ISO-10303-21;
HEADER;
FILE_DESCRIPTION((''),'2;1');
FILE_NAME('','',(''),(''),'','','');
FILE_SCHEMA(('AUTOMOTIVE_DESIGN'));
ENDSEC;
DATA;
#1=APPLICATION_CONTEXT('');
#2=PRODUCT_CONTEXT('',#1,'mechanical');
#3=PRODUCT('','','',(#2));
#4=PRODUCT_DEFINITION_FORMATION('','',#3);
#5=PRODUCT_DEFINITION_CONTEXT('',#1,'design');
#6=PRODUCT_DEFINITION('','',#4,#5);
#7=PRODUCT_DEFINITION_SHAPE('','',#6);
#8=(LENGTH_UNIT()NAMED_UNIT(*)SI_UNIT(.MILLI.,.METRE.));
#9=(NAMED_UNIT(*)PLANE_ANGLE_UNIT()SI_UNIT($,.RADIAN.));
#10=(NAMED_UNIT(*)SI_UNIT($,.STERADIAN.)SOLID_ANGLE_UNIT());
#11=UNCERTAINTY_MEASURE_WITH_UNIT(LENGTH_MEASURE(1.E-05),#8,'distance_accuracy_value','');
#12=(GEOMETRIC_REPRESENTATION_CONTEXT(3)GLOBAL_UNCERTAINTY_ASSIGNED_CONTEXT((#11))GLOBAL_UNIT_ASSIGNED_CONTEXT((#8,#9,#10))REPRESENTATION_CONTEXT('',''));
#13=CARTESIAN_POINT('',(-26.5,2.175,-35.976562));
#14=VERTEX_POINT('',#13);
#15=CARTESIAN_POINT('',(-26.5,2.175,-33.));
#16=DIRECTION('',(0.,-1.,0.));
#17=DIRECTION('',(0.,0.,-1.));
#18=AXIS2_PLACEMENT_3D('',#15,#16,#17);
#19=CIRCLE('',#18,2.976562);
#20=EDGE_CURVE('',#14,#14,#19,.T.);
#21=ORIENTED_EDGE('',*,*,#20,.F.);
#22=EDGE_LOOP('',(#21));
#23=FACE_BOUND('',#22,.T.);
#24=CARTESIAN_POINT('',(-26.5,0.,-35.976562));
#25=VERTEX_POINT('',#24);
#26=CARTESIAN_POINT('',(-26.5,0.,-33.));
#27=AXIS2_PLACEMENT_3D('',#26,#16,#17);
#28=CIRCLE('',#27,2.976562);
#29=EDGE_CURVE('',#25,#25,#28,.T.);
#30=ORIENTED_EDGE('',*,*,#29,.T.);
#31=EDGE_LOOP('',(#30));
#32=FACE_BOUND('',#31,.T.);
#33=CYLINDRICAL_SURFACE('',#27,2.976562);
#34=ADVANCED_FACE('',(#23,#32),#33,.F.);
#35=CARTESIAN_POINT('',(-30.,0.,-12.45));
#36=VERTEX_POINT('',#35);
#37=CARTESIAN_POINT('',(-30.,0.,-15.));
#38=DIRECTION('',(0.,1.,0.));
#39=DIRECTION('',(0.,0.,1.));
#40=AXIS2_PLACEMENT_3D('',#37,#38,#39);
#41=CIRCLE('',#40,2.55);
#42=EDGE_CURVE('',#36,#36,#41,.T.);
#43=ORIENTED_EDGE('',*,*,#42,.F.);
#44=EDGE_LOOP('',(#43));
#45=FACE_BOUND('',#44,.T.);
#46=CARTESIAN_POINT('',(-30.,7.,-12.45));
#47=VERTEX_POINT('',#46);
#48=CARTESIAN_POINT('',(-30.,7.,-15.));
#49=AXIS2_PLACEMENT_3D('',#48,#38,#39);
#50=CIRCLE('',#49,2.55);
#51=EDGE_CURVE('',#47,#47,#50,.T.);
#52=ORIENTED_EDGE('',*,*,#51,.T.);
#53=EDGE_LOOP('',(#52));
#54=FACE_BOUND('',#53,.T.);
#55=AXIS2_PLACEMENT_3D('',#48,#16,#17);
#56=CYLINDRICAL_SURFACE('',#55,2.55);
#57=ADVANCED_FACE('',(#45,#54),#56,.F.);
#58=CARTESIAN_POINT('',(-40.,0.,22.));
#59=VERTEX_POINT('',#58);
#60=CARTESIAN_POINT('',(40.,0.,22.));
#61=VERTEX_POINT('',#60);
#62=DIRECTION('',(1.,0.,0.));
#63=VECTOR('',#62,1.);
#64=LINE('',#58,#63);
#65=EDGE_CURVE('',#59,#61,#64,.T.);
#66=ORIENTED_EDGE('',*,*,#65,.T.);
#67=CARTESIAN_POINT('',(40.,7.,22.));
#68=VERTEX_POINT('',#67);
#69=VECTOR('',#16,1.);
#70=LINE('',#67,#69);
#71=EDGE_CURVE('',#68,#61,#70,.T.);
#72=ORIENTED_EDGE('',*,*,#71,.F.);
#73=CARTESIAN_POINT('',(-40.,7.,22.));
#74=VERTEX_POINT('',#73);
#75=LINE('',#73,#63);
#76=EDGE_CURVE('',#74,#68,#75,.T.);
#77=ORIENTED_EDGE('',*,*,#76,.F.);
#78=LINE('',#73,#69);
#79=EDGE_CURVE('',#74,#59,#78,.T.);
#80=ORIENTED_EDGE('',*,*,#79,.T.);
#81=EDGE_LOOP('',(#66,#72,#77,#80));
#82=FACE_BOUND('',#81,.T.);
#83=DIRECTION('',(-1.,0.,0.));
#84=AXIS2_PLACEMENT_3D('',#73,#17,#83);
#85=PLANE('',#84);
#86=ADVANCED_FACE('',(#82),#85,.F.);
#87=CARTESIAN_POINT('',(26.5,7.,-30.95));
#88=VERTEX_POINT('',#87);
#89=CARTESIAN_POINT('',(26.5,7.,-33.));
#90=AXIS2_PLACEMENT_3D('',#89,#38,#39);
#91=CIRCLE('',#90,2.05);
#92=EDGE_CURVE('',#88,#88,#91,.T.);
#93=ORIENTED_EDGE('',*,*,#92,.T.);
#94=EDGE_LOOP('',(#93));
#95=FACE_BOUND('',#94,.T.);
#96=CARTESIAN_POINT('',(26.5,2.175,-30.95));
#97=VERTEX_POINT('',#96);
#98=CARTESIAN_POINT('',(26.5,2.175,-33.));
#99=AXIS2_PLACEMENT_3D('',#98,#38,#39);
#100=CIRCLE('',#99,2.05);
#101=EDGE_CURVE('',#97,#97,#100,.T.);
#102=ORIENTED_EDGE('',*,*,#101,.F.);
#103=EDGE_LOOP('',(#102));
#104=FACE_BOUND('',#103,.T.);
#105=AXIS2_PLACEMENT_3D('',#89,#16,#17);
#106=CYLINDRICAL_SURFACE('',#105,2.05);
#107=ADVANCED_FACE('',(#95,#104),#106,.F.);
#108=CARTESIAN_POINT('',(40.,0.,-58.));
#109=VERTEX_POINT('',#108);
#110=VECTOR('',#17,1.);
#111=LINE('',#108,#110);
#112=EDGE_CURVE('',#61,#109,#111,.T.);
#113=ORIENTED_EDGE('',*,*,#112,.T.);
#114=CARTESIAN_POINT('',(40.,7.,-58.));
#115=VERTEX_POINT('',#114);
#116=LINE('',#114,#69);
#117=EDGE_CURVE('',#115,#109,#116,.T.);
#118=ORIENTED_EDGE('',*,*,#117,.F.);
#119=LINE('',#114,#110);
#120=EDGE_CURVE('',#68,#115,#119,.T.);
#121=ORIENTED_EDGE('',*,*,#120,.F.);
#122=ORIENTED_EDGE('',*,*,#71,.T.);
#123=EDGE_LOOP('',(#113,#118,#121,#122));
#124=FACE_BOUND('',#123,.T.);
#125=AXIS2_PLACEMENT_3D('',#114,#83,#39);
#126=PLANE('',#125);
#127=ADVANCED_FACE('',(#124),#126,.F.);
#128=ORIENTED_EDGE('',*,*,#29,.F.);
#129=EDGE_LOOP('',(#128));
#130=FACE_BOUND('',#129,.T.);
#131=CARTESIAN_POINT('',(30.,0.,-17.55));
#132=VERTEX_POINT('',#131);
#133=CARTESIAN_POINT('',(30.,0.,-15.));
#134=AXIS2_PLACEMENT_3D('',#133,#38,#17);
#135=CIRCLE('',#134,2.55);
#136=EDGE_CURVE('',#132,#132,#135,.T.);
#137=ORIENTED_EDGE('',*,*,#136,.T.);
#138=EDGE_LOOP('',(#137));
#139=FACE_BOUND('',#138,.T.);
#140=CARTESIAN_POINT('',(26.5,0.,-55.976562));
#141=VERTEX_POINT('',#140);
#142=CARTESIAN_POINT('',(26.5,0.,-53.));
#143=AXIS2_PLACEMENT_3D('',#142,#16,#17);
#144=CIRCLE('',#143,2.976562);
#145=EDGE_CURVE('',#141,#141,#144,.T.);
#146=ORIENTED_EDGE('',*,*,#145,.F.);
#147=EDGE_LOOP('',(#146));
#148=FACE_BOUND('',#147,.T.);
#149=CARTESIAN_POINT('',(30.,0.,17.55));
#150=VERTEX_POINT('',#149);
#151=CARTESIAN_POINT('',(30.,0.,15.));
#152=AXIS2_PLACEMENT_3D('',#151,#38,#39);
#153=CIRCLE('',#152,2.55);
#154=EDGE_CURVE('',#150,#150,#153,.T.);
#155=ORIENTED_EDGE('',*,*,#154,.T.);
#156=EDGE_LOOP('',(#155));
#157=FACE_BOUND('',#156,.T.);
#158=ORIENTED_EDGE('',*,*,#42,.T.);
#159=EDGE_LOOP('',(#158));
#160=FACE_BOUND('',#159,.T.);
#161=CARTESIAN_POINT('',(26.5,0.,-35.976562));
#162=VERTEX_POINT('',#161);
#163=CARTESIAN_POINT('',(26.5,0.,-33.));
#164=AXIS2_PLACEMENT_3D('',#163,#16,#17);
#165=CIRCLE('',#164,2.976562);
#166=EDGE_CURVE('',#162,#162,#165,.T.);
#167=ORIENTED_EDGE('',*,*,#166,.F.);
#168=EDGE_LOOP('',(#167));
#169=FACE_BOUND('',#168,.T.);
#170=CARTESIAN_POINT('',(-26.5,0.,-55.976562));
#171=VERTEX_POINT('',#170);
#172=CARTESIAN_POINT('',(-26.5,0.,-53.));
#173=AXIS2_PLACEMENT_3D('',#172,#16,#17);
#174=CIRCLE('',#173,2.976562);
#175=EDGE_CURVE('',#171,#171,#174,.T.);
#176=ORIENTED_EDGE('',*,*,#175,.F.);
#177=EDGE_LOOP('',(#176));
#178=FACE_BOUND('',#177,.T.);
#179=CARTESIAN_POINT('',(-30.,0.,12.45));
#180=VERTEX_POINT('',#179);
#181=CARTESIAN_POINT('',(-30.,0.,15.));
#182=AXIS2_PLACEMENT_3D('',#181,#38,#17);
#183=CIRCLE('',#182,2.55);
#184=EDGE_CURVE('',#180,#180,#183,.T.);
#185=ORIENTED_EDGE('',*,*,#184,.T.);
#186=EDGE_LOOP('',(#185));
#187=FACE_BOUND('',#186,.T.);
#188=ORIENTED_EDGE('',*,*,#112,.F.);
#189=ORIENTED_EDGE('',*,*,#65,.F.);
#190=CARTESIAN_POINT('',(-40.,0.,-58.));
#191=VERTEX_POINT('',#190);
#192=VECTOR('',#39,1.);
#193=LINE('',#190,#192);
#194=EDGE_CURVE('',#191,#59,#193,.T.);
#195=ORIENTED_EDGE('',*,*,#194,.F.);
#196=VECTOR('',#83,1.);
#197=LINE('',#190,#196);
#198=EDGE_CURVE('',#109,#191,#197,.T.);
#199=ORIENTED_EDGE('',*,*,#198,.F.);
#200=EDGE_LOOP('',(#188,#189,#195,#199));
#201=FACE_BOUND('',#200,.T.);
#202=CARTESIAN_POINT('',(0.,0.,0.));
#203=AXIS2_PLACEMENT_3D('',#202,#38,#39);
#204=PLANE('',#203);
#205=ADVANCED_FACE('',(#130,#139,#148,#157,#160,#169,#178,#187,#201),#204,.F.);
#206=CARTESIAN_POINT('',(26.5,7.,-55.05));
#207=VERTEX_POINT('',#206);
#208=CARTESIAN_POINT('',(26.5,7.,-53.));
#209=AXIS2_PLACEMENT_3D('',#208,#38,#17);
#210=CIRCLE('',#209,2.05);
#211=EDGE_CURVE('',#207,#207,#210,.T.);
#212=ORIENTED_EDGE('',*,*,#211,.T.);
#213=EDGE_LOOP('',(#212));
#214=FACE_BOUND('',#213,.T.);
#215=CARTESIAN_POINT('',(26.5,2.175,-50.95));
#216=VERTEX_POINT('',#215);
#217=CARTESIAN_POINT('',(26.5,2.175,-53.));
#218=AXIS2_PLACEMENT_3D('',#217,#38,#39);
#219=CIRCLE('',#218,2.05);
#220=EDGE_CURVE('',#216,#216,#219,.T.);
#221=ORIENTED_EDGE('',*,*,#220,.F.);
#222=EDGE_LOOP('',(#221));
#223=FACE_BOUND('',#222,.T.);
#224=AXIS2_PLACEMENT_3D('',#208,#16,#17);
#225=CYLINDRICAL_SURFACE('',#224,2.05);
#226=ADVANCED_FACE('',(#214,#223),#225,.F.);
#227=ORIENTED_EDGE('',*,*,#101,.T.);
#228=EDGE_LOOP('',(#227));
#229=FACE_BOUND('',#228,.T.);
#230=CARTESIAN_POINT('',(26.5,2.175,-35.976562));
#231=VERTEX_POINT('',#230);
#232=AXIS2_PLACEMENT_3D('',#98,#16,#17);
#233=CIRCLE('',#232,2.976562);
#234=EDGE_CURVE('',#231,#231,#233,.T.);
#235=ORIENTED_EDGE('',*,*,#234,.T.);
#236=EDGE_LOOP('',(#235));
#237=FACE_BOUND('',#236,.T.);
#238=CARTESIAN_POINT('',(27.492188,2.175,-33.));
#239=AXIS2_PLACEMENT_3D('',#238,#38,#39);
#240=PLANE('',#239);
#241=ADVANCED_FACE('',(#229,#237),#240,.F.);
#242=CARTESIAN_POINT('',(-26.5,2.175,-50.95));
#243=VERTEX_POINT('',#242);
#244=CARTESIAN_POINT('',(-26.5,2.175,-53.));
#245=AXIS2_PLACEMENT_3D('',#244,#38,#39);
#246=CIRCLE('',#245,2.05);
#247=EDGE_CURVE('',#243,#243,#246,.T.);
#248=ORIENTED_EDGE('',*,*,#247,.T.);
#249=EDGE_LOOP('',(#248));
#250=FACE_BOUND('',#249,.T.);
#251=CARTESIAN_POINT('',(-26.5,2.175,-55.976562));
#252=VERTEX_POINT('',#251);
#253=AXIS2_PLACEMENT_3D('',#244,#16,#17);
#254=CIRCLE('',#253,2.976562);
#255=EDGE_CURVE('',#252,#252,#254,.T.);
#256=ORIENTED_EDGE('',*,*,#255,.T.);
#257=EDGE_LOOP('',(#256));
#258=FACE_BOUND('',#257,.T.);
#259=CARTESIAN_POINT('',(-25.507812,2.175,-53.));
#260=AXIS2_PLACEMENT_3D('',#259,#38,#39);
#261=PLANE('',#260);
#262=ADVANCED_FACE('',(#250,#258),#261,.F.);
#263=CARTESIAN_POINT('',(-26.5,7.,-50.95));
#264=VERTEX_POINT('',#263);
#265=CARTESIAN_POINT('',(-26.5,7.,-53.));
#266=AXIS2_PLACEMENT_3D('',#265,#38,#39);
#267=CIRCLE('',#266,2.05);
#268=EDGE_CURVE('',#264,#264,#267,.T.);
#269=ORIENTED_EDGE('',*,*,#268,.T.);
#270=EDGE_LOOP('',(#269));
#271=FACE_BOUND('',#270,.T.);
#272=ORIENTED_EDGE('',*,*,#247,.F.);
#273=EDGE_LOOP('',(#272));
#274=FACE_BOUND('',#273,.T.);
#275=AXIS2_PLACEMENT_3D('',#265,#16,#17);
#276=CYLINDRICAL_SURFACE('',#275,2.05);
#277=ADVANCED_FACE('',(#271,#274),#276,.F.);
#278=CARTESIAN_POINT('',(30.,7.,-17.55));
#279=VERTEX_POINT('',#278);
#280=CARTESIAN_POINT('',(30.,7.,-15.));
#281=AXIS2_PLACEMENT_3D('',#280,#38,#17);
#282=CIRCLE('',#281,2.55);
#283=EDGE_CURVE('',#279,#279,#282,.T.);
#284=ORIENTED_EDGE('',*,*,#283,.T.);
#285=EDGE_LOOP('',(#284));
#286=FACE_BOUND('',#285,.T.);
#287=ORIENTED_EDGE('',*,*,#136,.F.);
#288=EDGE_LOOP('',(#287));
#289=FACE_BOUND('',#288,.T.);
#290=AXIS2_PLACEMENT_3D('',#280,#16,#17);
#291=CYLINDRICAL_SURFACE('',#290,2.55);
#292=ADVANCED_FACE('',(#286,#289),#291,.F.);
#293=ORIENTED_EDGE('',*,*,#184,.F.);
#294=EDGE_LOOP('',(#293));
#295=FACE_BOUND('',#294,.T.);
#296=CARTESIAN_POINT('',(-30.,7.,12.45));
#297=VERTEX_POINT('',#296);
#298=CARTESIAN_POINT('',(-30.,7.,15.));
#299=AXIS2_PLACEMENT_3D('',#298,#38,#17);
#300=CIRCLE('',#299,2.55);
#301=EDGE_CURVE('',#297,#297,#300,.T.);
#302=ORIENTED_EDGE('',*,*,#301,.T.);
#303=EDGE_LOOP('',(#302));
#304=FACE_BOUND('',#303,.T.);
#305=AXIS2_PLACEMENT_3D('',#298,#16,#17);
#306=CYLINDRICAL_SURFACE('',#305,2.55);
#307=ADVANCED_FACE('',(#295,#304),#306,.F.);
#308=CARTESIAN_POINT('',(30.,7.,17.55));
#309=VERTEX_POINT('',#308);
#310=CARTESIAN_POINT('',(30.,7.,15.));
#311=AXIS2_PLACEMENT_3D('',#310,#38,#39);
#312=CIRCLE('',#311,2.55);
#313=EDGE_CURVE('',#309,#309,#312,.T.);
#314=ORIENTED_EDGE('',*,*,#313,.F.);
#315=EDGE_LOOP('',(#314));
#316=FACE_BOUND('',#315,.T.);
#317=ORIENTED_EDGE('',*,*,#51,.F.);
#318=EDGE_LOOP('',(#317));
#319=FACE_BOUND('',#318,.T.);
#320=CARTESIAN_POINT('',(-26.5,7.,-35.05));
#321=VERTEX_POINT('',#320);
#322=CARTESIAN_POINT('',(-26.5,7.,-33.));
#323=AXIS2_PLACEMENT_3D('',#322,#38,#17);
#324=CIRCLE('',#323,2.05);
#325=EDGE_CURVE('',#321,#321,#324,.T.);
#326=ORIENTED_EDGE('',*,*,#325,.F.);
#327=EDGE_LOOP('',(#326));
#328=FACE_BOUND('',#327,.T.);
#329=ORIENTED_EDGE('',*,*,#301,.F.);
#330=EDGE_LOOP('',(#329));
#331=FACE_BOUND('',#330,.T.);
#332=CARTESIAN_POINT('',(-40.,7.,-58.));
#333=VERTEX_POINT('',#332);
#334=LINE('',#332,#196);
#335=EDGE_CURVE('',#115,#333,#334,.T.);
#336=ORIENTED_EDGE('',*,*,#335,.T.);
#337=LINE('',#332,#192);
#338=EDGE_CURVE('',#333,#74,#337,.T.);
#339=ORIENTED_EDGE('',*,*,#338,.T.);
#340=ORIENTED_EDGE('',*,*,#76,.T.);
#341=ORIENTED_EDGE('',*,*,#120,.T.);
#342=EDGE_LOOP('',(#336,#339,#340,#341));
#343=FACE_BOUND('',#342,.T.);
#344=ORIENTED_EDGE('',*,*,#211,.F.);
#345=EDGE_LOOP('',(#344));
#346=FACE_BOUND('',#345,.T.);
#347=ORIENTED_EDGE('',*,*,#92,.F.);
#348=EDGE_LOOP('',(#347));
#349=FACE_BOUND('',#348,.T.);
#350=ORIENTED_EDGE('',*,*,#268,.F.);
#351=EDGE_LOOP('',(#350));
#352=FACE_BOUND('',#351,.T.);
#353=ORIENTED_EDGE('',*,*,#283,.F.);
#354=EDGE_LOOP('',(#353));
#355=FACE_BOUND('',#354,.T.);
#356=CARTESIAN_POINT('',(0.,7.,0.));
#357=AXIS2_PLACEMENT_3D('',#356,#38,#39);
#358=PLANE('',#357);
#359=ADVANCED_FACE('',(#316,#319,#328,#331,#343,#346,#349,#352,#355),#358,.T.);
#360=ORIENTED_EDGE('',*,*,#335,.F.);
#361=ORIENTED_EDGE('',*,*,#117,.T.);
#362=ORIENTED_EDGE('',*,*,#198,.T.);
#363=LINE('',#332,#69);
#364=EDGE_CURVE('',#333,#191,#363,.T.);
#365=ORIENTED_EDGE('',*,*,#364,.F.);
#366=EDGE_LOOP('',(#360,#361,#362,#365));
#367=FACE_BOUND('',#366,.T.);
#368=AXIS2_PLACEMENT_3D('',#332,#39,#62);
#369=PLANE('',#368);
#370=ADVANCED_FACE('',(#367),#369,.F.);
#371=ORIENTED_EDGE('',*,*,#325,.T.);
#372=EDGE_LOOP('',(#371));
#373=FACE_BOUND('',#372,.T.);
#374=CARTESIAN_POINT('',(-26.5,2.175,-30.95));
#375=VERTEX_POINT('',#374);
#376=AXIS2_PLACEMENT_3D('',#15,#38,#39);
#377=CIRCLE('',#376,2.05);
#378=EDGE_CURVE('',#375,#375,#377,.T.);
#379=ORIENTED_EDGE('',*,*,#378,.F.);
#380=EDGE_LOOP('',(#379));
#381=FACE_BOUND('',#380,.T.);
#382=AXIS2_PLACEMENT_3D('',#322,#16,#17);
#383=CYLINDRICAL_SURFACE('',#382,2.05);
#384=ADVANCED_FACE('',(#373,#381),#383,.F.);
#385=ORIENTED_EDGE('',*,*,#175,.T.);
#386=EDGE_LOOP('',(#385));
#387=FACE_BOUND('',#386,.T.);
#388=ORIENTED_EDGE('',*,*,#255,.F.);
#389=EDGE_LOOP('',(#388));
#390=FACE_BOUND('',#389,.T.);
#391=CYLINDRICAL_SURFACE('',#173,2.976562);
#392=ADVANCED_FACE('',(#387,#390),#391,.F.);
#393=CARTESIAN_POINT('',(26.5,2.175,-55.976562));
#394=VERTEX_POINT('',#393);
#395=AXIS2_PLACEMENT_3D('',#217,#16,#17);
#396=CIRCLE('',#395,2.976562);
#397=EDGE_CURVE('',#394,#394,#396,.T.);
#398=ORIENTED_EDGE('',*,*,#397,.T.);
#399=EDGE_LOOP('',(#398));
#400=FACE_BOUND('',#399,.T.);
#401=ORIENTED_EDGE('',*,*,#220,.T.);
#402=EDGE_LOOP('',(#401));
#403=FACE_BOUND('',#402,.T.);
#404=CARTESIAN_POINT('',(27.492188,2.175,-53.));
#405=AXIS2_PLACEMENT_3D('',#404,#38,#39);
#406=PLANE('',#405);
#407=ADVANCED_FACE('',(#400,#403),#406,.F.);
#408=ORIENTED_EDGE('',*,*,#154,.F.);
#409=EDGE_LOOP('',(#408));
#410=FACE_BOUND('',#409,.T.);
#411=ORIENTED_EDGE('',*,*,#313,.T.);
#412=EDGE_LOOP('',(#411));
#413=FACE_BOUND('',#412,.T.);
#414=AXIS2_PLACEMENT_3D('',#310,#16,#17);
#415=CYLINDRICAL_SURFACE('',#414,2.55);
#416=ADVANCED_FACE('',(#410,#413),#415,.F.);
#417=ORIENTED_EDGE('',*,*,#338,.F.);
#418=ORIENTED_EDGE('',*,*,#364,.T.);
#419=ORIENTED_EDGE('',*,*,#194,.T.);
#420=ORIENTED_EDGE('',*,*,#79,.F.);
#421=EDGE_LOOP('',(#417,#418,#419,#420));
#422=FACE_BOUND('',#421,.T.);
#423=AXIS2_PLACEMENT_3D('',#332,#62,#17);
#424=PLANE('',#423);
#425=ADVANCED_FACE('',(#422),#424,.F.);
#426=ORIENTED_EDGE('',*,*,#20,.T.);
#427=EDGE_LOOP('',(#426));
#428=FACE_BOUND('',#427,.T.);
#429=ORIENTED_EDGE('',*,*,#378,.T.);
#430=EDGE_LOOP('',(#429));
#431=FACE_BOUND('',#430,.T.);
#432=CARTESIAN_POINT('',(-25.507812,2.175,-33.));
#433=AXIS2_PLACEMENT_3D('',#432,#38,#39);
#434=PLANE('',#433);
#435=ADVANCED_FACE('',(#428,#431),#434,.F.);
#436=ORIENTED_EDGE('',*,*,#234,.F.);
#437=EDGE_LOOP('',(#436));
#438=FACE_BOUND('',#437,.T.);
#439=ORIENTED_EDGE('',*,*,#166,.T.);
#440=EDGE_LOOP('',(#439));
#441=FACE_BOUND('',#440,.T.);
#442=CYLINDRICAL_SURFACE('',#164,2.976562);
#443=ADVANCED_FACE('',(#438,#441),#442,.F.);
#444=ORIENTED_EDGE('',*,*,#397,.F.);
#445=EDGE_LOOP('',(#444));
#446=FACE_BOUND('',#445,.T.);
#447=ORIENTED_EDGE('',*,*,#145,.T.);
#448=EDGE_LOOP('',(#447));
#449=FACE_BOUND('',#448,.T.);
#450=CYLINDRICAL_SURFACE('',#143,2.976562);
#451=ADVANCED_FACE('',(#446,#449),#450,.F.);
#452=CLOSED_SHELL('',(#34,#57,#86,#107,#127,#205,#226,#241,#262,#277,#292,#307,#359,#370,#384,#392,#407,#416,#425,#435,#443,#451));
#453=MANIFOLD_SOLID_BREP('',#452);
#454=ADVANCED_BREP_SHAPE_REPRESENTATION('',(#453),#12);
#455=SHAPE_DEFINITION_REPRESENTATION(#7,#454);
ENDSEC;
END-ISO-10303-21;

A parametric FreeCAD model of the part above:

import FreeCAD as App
import Part
import Sketcher
Q = App.Units.Quantity


def add_polygon(sketch, points):
    """Adds a closed chain of lines whose ends are joined by coincident constraints."""
    first, n = sketch.GeometryCount, len(points)
    for a, b in zip(points, points[1:] + points[:1]):
        sketch.addGeometry(Part.LineSegment(App.Vector(*a, 0), App.Vector(*b, 0)), False)
    for i in range(n):
        sketch.addConstraint(Sketcher.Constraint("Coincident", first + i, 2, first + (i + 1) % n, 1))

doc = App.newDocument("Part")
body = doc.addObject("PartDesign::Body", "Body")

# Sketch on XZ plane
sketch1 = body.newObject("Sketcher::SketchObject", "Sketch")
sketch1.AttachmentSupport = (doc.getObject("XZ_Plane"), [""])
sketch1.MapMode = "FlatFace"
add_polygon(sketch1, [(-40, -58), (-40, 22), (40, 22), (40, -58)])  # lines 0-3
sketch1.addGeometry(Part.Circle(App.Vector(-30, 15, 0), App.Vector(0, 0, 1), 2.55), False)  # 4
sketch1.addGeometry(Part.Circle(App.Vector(-30, -15, 0), App.Vector(0, 0, 1), 2.55), False)  # 5
sketch1.addGeometry(Part.Circle(App.Vector(30, 15, 0), App.Vector(0, 0, 1), 2.55), False)  # 6
sketch1.addGeometry(Part.Circle(App.Vector(30, -15, 0), App.Vector(0, 0, 1), 2.55), False)  # 7
sketch1.addGeometry(Part.Circle(App.Vector(-26.5, -33, 0), App.Vector(0, 0, 1), 2.05), False)  # 8
sketch1.addGeometry(Part.Circle(App.Vector(-26.5, -53, 0), App.Vector(0, 0, 1), 2.05), False)  # 9
sketch1.addGeometry(Part.Circle(App.Vector(26.5, -33, 0), App.Vector(0, 0, 1), 2.05), False)  # 10
sketch1.addGeometry(Part.Circle(App.Vector(26.5, -53, 0), App.Vector(0, 0, 1), 2.05), False)  # 11
sketch1.addConstraint(Sketcher.Constraint("Vertical", 0))
sketch1.addConstraint(Sketcher.Constraint("Horizontal", 1))
sketch1.addConstraint(Sketcher.Constraint("Vertical", 2))
sketch1.addConstraint(Sketcher.Constraint("Horizontal", 3))
sketch1.addConstraint(Sketcher.Constraint("Equal", 4, 5))
sketch1.addConstraint(Sketcher.Constraint("Equal", 5, 6))
sketch1.addConstraint(Sketcher.Constraint("Equal", 6, 7))
sketch1.addConstraint(Sketcher.Constraint("Equal", 8, 9))
sketch1.addConstraint(Sketcher.Constraint("Equal", 9, 10))
sketch1.addConstraint(Sketcher.Constraint("Equal", 10, 11))
sketch1.addConstraint(Sketcher.Constraint("Symmetric", 5, 3, 6, 3, -1, 1))
sketch1.addConstraint(Sketcher.Constraint("Symmetric", 4, 3, 7, 3, -1, 1))
sketch1.addConstraint(Sketcher.Constraint("Symmetric", 4, 3, 6, 3, -2))
sketch1.addConstraint(Sketcher.Constraint("Symmetric", 8, 3, 10, 3, -2))
sketch1.addConstraint(Sketcher.Constraint("Symmetric", 9, 3, 11, 3, -2))
sketch1.addConstraint(Sketcher.Constraint("Vertical", 8, 3, 9, 3))
sketch1.addConstraint(Sketcher.Constraint("Equal", 3, 0))
sketch1.addConstraint(Sketcher.Constraint("Diameter", 4, Q("5.1 mm")))
sketch1.addConstraint(Sketcher.Constraint("Diameter", 8, Q("4.1 mm")))
sketch1.addConstraint(Sketcher.Constraint("DistanceX", 1, 1, 1, 2, Q("80 mm")))
sketch1.addConstraint(Sketcher.Constraint("DistanceX", 4, 3, -1, 1, Q("30 mm")))
sketch1.addConstraint(Sketcher.Constraint("DistanceY", -1, 1, 4, 3, Q("15 mm")))
sketch1.addConstraint(Sketcher.Constraint("DistanceY", 8, 3, -1, 1, Q("33 mm")))
sketch1.addConstraint(Sketcher.Constraint("DistanceY", 9, 3, -1, 1, Q("53 mm")))
sketch1.addConstraint(Sketcher.Constraint("DistanceX", 0, 2, -1, 1, Q("40 mm")))
sketch1.addConstraint(Sketcher.Constraint("DistanceY", -1, 1, 0, 2, Q("22 mm")))
sketch1.addConstraint(Sketcher.Constraint("DistanceX", 8, 3, 10, 3, Q("53 mm")))
pad1 = body.newObject("PartDesign::Pad", "Pad")
pad1.Profile = sketch1
pad1.Length = 7
pad1.Reversed = True

# Sketch on XZ plane
sketch2 = body.newObject("Sketcher::SketchObject", "Sketch001")
sketch2.AttachmentSupport = (doc.getObject("XZ_Plane"), [""])
sketch2.MapMode = "FlatFace"
sketch2.addGeometry(Part.Circle(App.Vector(-26.5, -33, 0), App.Vector(0, 0, 1), 0.992188), False)
sketch2.addGeometry(Part.Circle(App.Vector(26.5, -33, 0), App.Vector(0, 0, 1), 0.992188), False)
sketch2.addGeometry(Part.Circle(App.Vector(-26.5, -53, 0), App.Vector(0, 0, 1), 0.992188), False)
sketch2.addGeometry(Part.Circle(App.Vector(26.5, -53, 0), App.Vector(0, 0, 1), 0.992188), False)
sketch2.addConstraint(Sketcher.Constraint("Equal", 0, 1))
sketch2.addConstraint(Sketcher.Constraint("Equal", 1, 2))
sketch2.addConstraint(Sketcher.Constraint("Equal", 2, 3))
sketch2.addConstraint(Sketcher.Constraint("Symmetric", 0, 3, 1, 3, -2))
sketch2.addConstraint(Sketcher.Constraint("Symmetric", 2, 3, 3, 3, -2))
sketch2.addConstraint(Sketcher.Constraint("Vertical", 0, 3, 2, 3))
sketch2.addConstraint(Sketcher.Constraint("DistanceY", 0, 3, -1, 1, Q("33 mm")))
sketch2.addConstraint(Sketcher.Constraint("DistanceY", 2, 3, -1, 1, Q("53 mm")))
sketch2.addConstraint(Sketcher.Constraint("DistanceX", 0, 3, 1, 3, Q("53 mm")))
sketch2.addConstraint(Sketcher.Constraint("Diameter", 0, Q("1.984375 mm")))
doc.recompute()
hole = body.newObject("PartDesign::Hole", "Hole")
hole.Profile = sketch2
hole.ThreadType = "None"
hole.Diameter = 1.984375
hole.DepthType = "ThroughAll"
hole.HoleCutType = "Counterbore"
hole.HoleCutDiameter = 5.953125
hole.HoleCutDepth = 2.175

doc.recompute()
